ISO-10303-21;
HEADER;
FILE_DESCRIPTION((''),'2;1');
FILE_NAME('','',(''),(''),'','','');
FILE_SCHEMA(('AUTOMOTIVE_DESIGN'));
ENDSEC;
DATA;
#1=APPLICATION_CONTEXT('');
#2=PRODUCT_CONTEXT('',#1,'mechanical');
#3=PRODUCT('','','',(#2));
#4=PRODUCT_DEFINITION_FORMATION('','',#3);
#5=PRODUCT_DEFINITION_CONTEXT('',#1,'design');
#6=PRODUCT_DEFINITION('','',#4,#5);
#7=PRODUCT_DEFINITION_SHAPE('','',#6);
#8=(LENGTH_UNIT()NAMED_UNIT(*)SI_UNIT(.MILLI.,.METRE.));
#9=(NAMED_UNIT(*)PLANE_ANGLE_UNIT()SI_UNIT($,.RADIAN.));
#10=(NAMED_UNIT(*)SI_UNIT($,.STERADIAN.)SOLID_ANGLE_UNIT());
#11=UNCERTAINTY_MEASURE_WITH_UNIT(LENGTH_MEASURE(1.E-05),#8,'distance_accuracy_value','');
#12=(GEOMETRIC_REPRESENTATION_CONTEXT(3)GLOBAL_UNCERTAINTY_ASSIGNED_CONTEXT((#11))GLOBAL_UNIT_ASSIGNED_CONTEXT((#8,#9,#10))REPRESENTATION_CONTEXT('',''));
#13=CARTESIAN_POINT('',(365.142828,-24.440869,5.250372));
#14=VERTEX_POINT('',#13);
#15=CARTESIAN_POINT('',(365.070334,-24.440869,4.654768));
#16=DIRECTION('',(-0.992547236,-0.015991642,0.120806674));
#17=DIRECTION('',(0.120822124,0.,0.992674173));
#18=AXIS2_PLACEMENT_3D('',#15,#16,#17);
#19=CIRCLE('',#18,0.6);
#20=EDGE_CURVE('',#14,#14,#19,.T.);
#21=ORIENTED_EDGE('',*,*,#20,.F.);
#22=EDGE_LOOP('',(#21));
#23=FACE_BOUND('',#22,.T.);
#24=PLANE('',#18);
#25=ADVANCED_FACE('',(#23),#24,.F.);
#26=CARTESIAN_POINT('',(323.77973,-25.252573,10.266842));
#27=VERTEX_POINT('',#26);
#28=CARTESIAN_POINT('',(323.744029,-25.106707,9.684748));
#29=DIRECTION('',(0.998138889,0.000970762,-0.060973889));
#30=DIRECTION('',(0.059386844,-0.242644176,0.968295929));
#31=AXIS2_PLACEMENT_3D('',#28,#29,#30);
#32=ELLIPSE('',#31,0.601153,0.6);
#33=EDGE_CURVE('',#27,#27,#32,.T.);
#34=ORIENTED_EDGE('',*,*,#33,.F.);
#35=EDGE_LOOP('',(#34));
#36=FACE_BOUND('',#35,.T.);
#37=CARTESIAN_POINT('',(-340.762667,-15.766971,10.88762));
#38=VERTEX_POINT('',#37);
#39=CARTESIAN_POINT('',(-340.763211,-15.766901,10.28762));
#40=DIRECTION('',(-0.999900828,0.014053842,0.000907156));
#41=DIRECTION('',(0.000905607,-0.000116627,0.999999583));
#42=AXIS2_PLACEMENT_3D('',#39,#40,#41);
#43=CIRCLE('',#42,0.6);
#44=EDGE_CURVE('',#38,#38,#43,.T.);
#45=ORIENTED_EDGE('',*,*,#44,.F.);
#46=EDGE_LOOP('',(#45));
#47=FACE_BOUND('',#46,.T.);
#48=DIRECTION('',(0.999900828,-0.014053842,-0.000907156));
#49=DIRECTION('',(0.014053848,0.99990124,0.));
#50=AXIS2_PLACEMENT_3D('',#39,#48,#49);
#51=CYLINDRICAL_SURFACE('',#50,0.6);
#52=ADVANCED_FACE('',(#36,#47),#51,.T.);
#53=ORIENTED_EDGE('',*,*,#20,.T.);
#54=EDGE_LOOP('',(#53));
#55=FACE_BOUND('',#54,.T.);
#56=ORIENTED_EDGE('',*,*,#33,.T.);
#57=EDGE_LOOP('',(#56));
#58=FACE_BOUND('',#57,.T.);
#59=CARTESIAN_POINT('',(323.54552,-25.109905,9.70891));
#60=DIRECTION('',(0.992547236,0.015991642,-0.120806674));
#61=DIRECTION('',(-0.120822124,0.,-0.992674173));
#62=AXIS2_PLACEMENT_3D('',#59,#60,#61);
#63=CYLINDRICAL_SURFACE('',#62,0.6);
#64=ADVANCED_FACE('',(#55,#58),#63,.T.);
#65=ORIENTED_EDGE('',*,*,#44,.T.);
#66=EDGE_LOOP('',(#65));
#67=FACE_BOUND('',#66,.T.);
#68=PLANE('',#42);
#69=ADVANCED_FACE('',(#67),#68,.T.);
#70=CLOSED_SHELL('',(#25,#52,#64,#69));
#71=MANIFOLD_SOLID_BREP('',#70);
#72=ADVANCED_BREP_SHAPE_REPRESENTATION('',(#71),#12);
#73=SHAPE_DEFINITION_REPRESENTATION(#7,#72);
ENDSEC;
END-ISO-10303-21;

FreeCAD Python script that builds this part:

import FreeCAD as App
import Part
import Sketcher
from FreeCAD import Vector
Q = App.Units.Quantity

doc = App.newDocument("Part")
body = doc.addObject("PartDesign::Body", "Body")

# Sketch on an angled plane
sketch1 = doc.addObject("Sketcher::SketchObject", "Sketch")
body.addObject(sketch1)
sketch1.Placement = App.Placement(Vector(-340.763211, -15.766901, 10.28762), App.Rotation(Vector(0.014053848, 0.99990124, 0), Vector(0.000907066, -0.000012749, 0.999999588), Vector(0.999900828, -0.014053842, -0.000907156), "ZXY"))
sketch1.addGeometry(Part.Circle(Vector(0, 0, 0), Vector(0, 0, 1), 0.6), False)
sketch1.addConstraint([
    Sketcher.Constraint("Coincident", 0, 3, -1, 1),
    Sketcher.Constraint("Diameter", 0, Q("1.2 mm")),
])

# Sketch on an angled plane
sketch2 = doc.addObject("Sketcher::SketchObject", "Sketch001")
body.addObject(sketch2)
sketch2.Placement = App.Placement(Vector(-0.242806, -17.001061, -4.245385), App.Rotation(Vector(0, -0.242273494, 0.970207995), Vector(0.999904015, -0.013442207, -0.003356693), Vector(0.013854974, 0.97011487, 0.242250239), "ZXY"))
sketch2.addGeometry([
    Part.LineSegment(Vector(14, -341, 0), Vector(15, 324, 0)),
    Part.LineSegment(Vector(15, 324, 0), Vector(10, 365, 0)),
], False)
sketch2.addConstraint([
    Sketcher.Constraint("Coincident", 0, 2, 1, 1),
    Sketcher.Constraint("DistanceY", 0, 1, 1, 2, Q("705.9013 mm")),
    Sketcher.Constraint("DistanceX", -1, 1, 0, 2, Q("15.47891 mm")),
    Sketcher.Constraint("DistanceY", 0, 1, 0, 2, Q("664.571028 mm")),
    Sketcher.Constraint("Distance", 1, Q("41.636613 mm")),
    Sketcher.Constraint("DistanceX", -1, 1, 0, 1, Q("13.801033 mm")),
    Sketcher.Constraint("DistanceY", 0, 1, -1, 1, Q("340.553093 mm")),
])
doc.recompute()

additivepipe = doc.addObject("PartDesign::AdditivePipe", "AdditivePipe")
body.addObject(additivepipe)
additivepipe.Profile = sketch1
additivepipe.Spine = (sketch2, ["Edge1", "Edge2"])
additivepipe.Transition = "Right corner"

doc.recompute()
